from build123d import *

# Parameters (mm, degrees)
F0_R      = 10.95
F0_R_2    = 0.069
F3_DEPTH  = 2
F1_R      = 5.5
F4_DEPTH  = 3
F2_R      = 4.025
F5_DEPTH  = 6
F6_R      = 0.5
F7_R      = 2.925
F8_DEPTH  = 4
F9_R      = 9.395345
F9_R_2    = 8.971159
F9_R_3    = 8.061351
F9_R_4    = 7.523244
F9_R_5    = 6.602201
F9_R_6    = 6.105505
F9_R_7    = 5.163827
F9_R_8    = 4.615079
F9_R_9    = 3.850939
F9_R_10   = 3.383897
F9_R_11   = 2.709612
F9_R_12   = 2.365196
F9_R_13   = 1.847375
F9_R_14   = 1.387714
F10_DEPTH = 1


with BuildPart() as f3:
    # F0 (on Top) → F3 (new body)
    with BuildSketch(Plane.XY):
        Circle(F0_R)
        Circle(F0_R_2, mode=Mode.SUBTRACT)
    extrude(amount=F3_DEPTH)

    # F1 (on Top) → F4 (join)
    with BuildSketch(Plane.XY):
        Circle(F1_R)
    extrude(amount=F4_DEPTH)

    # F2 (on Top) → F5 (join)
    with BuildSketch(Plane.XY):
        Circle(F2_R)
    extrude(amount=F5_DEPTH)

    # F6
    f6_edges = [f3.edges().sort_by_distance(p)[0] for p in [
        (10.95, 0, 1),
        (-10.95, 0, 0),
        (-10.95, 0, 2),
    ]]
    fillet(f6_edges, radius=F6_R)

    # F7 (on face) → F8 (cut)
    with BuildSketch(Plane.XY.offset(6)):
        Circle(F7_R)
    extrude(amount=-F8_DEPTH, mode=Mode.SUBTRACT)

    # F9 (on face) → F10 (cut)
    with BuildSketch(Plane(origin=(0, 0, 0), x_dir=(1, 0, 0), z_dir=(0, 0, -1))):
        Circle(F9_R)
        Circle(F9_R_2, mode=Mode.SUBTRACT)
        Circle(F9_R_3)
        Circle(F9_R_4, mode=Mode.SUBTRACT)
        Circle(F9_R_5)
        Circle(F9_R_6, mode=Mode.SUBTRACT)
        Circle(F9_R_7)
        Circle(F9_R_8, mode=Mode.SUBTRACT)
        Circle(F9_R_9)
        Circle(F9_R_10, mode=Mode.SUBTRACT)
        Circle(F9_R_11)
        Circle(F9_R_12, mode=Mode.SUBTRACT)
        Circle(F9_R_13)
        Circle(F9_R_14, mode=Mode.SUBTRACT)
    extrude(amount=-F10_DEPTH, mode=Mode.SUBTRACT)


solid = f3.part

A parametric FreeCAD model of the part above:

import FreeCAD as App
import Part
import Sketcher


def edges_at(feature, points):
    """Names of the edges that pass closest to the given points."""
    edges = feature.Shape.Edges
    near = lambda p: min(range(len(edges)), key=lambda i: edges[i].distToShape(Part.Vertex(*p))[0])
    return sorted({f"Edge{near(p) + 1}" for p in points})

doc = App.newDocument("Part")
body = doc.addObject("PartDesign::Body", "Body")

# Sketch on XY plane
sketch1 = doc.addObject("Sketcher::SketchObject", "Sketch")
body.addObject(sketch1)
sketch1.AttachmentSupport = (doc.XY_Plane, [""])
sketch1.MapMode = "FlatFace"
sketch1.addGeometry([
    Part.Circle(App.Vector(0, 0, 0), App.Vector(0, 0, 1), 10.95),
    Part.Circle(App.Vector(0, 0, 0), App.Vector(0, 0, 1), 0.07),
], False)
sketch1.addConstraint([
    Sketcher.Constraint("Coincident", 0, 3, -1, 1),
    Sketcher.Constraint("Coincident", 1, 3, -1, 1),
    Sketcher.Constraint("Diameter", 0, 21.9),
    Sketcher.Constraint("Diameter", 1, 0.138),
])
pad1 = doc.addObject("PartDesign::Pad", "Pad")
body.addObject(pad1)
pad1.Profile = sketch1
pad1.Length = 2

# Sketch on XY plane
sketch2 = doc.addObject("Sketcher::SketchObject", "Sketch001")
body.addObject(sketch2)
sketch2.AttachmentSupport = (doc.XY_Plane, [""])
sketch2.MapMode = "FlatFace"
sketch2.addGeometry(Part.Circle(App.Vector(0, 0, 0), App.Vector(0, 0, 1), 6), False)
sketch2.addConstraint([
    Sketcher.Constraint("Coincident", 0, 3, -1, 1),
    Sketcher.Constraint("Diameter", 0, 11.0),
])
pad2 = doc.addObject("PartDesign::Pad", "Pad001")
body.addObject(pad2)
pad2.Profile = sketch2
pad2.Length = 3

# Sketch on XY plane
sketch3 = doc.addObject("Sketcher::SketchObject", "Sketch002")
body.addObject(sketch3)
sketch3.AttachmentSupport = (doc.XY_Plane, [""])
sketch3.MapMode = "FlatFace"
sketch3.addGeometry(Part.Circle(App.Vector(0, 0, 0), App.Vector(0, 0, 1), 4), False)
sketch3.addConstraint([
    Sketcher.Constraint("Coincident", 0, 3, -1, 1),
    Sketcher.Constraint("Diameter", 0, 8.05),
])
pad3 = doc.addObject("PartDesign::Pad", "Pad002")
body.addObject(pad3)
pad3.Profile = sketch3
pad3.Length = 6
doc.recompute()

fillet = doc.addObject("PartDesign::Fillet", "Fillet")
body.addObject(fillet)
fillet.Base = (pad3, edges_at(pad3, [(10.95, 0, 1), (-10.95, 0, 0), (-10.95, 0, 2)]))
fillet.Radius = 0.5

# Sketch on XY plane
sketch4 = doc.addObject("Sketcher::SketchObject", "Sketch003")
body.addObject(sketch4)
sketch4.AttachmentSupport = (doc.XY_Plane, [""])
sketch4.MapMode = "FlatFace"
sketch4.AttachmentOffset = App.Placement(App.Vector(0, 0, 6), App.Rotation())
sketch4.addGeometry(Part.Circle(App.Vector(0, 0, 0), App.Vector(0, 0, 1), 2.9), False)
sketch4.addConstraint([
    Sketcher.Constraint("Coincident", 0, 3, -1, 1),
    Sketcher.Constraint("Diameter", 0, 5.85),
])
pocket1 = doc.addObject("PartDesign::Pocket", "Pocket")
body.addObject(pocket1)
pocket1.Profile = sketch4
pocket1.Length = 4

# Sketch on XY plane
sketch5 = doc.addObject("Sketcher::SketchObject", "Sketch004")
body.addObject(sketch5)
sketch5.AttachmentSupport = (doc.XY_Plane, [""])
sketch5.MapMode = "FlatFace"
sketch5.addGeometry([
    Part.Circle(App.Vector(0, 0, 0), App.Vector(0, 0, 1), 9.4),  # 0
    Part.Circle(App.Vector(0, 0, 0), App.Vector(0, 0, 1), 9),  # 1
    Part.Circle(App.Vector(0, 0, 0), App.Vector(0, 0, 1), 8.1),  # 2
    Part.Circle(App.Vector(0, 0, 0), App.Vector(0, 0, 1), 7.5),  # 3
    Part.Circle(App.Vector(0, 0, 0), App.Vector(0, 0, 1), 6.6),  # 4
    Part.Circle(App.Vector(0, 0, 0), App.Vector(0, 0, 1), 6.1),  # 5
    Part.Circle(App.Vector(0, 0, 0), App.Vector(0, 0, 1), 5.2),  # 6
    Part.Circle(App.Vector(0, 0, 0), App.Vector(0, 0, 1), 4.6),  # 7
    Part.Circle(App.Vector(0, 0, 0), App.Vector(0, 0, 1), 3.9),  # 8
    Part.Circle(App.Vector(0, 0, 0), App.Vector(0, 0, 1), 3.4),  # 9
    Part.Circle(App.Vector(0, 0, 0), App.Vector(0, 0, 1), 2.7),  # 10
    Part.Circle(App.Vector(0, 0, 0), App.Vector(0, 0, 1), 2.4),  # 11
    Part.Circle(App.Vector(0, 0, 0), App.Vector(0, 0, 1), 1.8),  # 12
    Part.Circle(App.Vector(0, 0, 0), App.Vector(0, 0, 1), 1.4),  # 13
], False)
sketch5.addConstraint([
    Sketcher.Constraint("Coincident", 0, 3, -1, 1),
    Sketcher.Constraint("Coincident", 1, 3, -1, 1),
    Sketcher.Constraint("Coincident", 2, 3, -1, 1),
    Sketcher.Constraint("Coincident", 3, 3, -1, 1),
    Sketcher.Constraint("Coincident", 4, 3, -1, 1),
    Sketcher.Constraint("Coincident", 5, 3, -1, 1),
    Sketcher.Constraint("Coincident", 6, 3, -1, 1),
    Sketcher.Constraint("Coincident", 7, 3, -1, 1),
    Sketcher.Constraint("Coincident", 8, 3, -1, 1),
    Sketcher.Constraint("Coincident", 9, 3, -1, 1),
    Sketcher.Constraint("Coincident", 10, 3, -1, 1),
    Sketcher.Constraint("Coincident", 11, 3, -1, 1),
    Sketcher.Constraint("Coincident", 12, 3, -1, 1),
    Sketcher.Constraint("Coincident", 13, 3, -1, 1),
    Sketcher.Constraint("Diameter", 0, 18.79069),
    Sketcher.Constraint("Diameter", 1, 17.942318),
    Sketcher.Constraint("Diameter", 5, 12.21101),
    Sketcher.Constraint("Diameter", 12, 3.69475),
    Sketcher.Constraint("Diameter", 2, 16.122702),
    Sketcher.Constraint("Diameter", 3, 15.046488),
    Sketcher.Constraint("Diameter", 4, 13.204402),
    Sketcher.Constraint("Diameter", 6, 10.327654),
    Sketcher.Constraint("Diameter", 7, 9.230158),
    Sketcher.Constraint("Diameter", 8, 7.701878),
    Sketcher.Constraint("Diameter", 9, 6.767794),
    Sketcher.Constraint("Diameter", 10, 5.419224),
    Sketcher.Constraint("Diameter", 11, 4.730392),
    Sketcher.Constraint("Diameter", 13, 2.775428),
])
pocket2 = doc.addObject("PartDesign::Pocket", "Pocket001")
body.addObject(pocket2)
pocket2.Profile = sketch5
pocket2.Length = 1
pocket2.Reversed = True

doc.recompute()
